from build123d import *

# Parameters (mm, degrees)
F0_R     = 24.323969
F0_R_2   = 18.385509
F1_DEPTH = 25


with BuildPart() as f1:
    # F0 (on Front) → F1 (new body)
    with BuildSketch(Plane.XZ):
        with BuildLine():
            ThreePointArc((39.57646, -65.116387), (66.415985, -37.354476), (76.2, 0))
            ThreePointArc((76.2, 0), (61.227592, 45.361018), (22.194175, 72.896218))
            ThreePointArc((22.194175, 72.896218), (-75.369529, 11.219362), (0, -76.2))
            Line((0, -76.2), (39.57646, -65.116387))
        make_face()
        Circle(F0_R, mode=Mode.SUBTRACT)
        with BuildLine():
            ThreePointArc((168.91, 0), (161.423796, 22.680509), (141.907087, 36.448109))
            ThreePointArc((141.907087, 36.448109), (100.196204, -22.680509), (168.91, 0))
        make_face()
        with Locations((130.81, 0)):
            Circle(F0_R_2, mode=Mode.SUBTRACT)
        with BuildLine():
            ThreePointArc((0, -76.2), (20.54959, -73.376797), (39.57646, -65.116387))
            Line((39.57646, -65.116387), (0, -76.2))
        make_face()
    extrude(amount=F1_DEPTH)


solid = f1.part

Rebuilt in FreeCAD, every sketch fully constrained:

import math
import FreeCAD as App
import Part
import Sketcher
from FreeCAD import Vector
Q = App.Units.Quantity

doc = App.newDocument("Part")
body = doc.addObject("PartDesign::Body", "Body")
body.AllowCompound = True

# Sketch on XZ plane
sketch1 = body.newObject("Sketcher::SketchObject", "Sketch")
sketch1.AttachmentSupport = (doc.getObject("XZ_Plane"), [""])
sketch1.MapMode = "FlatFace"
sketch1.addGeometry([
    Part.ArcOfCircle(Part.Circle(Vector(0, 0, 0), Vector(0, 0, 1), 76), math.radians(-59), math.radians(0)),  # 0
    Part.ArcOfCircle(Part.Circle(Vector(0, 0, 0), Vector(0, 0, 1), 76), math.radians(0), math.radians(73)),  # 1
    Part.ArcOfCircle(Part.Circle(Vector(0, 0, 0), Vector(0, 0, 1), 76), math.radians(73), math.radians(270)),  # 2
    Part.ArcOfCircle(Part.Circle(Vector(0, 0, 0), Vector(0, 0, 1), 76), math.radians(-90), math.radians(-59)),  # 3
    Part.Circle(Vector(0, 0, 0), Vector(0, 0, 1), 24),  # 4
    Part.ArcOfCircle(Part.Circle(Vector(131, 0, 0), Vector(0, 0, 1), 38), math.radians(0), math.radians(73)),  # 5
    Part.ArcOfCircle(Part.Circle(Vector(131, 0, 0), Vector(0, 0, 1), 38), math.radians(73), math.radians(360)),  # 6
    Part.Circle(Vector(131, 0, 0), Vector(0, 0, 1), 18),  # 7
], False)
sketch1.addConstraint([
    Sketcher.Constraint("Tangent", 0, 2, 1, 1),
    Sketcher.Constraint("Tangent", 1, 2, 2, 1),
    Sketcher.Constraint("Tangent", 2, 2, 3, 1),
    Sketcher.Constraint("Tangent", 3, 2, 0, 1),
    Sketcher.Constraint("Tangent", 5, 1, 6, 2),
    Sketcher.Constraint("Coincident", 6, 1, 5, 2),
    Sketcher.Constraint("Coincident", 0, 3, -1, 1),
    Sketcher.Constraint("Coincident", 4, 3, -1, 1),
    Sketcher.Constraint("Coincident", 7, 3, 5, 3),
    Sketcher.Constraint("Equal", 1, 2),
    Sketcher.Constraint("PointOnObject", 5, 3, -1),
    Sketcher.Constraint("PointOnObject", 0, 2, -1),
    Sketcher.Constraint("PointOnObject", 2, 2, -2),
    Sketcher.Constraint("PointOnObject", 5, 1, -1),
    Sketcher.Constraint("Radius", 0, Q("3.0000001 in")),
    Sketcher.Constraint("Radius", 5, Q("1.5 in")),
    Sketcher.Constraint("DistanceX", -1, 1, 5, 3, Q("5.15 in")),
    Sketcher.Constraint("Diameter", 4, Q("48.647938 mm")),
    Sketcher.Constraint("Diameter", 7, Q("36.771018 mm")),
    Sketcher.Constraint("DistanceY", -1, 1, 1, 2, Q("72.896218 mm")),
    Sketcher.Constraint("DistanceX", -1, 1, 3, 2, Q("39.57646 mm")),
    Sketcher.Constraint("DistanceY", -1, 1, 6, 1, Q("36.448109 mm")),
])
pad1 = body.newObject("PartDesign::Pad", "Pad")
pad1.Profile = sketch1
pad1.Length = 25

doc.recompute()
